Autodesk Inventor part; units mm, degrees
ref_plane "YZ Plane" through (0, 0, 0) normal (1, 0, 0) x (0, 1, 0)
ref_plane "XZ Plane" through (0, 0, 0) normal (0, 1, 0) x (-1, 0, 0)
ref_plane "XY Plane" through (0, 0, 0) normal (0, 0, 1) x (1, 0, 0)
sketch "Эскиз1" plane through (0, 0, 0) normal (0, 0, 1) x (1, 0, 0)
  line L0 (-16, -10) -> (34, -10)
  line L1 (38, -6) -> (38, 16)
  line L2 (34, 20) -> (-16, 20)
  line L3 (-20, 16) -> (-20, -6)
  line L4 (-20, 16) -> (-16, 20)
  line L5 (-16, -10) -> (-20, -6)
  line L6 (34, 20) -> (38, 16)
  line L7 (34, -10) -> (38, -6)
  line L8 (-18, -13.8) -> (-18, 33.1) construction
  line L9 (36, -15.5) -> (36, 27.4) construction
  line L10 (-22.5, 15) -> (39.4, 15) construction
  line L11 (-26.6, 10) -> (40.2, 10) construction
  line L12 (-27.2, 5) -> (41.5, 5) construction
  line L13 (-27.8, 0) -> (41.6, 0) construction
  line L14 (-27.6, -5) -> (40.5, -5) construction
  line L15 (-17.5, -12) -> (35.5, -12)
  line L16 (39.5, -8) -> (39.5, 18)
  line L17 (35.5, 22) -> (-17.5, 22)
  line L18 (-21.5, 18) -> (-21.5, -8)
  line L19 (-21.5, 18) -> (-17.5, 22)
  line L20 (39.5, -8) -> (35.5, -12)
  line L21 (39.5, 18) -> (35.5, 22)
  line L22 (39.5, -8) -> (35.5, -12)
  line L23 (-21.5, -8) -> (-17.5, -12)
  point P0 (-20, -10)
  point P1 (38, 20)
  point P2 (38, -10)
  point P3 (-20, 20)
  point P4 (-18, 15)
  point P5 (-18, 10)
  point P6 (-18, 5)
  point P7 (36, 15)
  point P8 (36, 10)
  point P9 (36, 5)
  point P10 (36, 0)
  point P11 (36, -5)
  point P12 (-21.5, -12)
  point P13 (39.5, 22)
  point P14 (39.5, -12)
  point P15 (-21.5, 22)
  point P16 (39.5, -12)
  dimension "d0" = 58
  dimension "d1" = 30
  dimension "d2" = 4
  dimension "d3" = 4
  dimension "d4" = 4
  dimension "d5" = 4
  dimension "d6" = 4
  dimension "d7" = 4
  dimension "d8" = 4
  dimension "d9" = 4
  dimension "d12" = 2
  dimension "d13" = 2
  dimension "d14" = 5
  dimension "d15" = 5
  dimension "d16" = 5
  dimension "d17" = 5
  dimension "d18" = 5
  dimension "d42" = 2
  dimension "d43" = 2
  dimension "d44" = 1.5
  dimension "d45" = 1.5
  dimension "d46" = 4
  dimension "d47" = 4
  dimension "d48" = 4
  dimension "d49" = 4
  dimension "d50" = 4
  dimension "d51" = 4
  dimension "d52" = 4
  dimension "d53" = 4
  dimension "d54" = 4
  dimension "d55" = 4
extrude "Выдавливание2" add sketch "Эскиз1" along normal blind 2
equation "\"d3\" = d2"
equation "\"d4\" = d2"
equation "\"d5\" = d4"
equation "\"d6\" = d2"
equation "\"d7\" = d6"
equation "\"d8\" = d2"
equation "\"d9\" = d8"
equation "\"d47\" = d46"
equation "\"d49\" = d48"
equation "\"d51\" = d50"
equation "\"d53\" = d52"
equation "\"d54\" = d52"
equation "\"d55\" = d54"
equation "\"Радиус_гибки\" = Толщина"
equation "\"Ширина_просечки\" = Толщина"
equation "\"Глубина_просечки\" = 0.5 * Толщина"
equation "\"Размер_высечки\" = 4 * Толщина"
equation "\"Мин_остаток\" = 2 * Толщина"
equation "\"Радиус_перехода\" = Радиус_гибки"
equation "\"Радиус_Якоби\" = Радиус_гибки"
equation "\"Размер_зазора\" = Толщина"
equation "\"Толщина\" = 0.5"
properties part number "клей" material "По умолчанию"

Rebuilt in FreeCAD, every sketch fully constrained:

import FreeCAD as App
import Part
import Sketcher

V = App.Vector


def add_polygon(sketch, points):
    """Adds a closed chain of lines whose ends are joined by coincident constraints."""
    first, n = sketch.GeometryCount, len(points)
    for a, b in zip(points, points[1:] + points[:1]):
        sketch.addGeometry(Part.LineSegment(App.Vector(*a, 0), App.Vector(*b, 0)), False)
    for i in range(n):
        sketch.addConstraint(Sketcher.Constraint("Coincident", first + i, 2, first + (i + 1) % n, 1))

doc = App.newDocument("Part")
body = doc.addObject("PartDesign::Body", "Body")

# Sketch on XY plane
sketch1 = body.newObject("Sketcher::SketchObject", "Sketch")
sketch1.AttachmentSupport = (doc.getObject("XY_Plane"), [""])
sketch1.MapMode = "FlatFace"
add_polygon(sketch1, [(-22, -8), (-18, -12), (36, -12), (40, -8), (40, 18), (36, 22), (-18, 22), (-22, 18)])  # lines 0-7
add_polygon(sketch1, [(34, -10), (-16, -10), (-20, -6), (-20, 16), (-16, 20), (34, 20), (38, 16), (38, -6)])  # lines 8-15
sketch1.addConstraint([
    Sketcher.Constraint("Horizontal", 1),
    Sketcher.Constraint("Vertical", 3),
    Sketcher.Constraint("Horizontal", 5),
    Sketcher.Constraint("Vertical", 7),
    Sketcher.Constraint("Horizontal", 8),
    Sketcher.Constraint("Vertical", 10),
    Sketcher.Constraint("Horizontal", 12),
    Sketcher.Constraint("Vertical", 14),
    Sketcher.Constraint("Perpendicular", 0, 2),
    Sketcher.Constraint("Perpendicular", 2, 4),
    Sketcher.Constraint("Perpendicular", 4, 6),
    Sketcher.Constraint("Perpendicular", 6, 9),
    Sketcher.Constraint("Perpendicular", 9, 11),
    Sketcher.Constraint("Perpendicular", 11, 13),
    Sketcher.Constraint("Perpendicular", 13, 15),
    Sketcher.Constraint("Horizontal", 3, 2, 6, 2),
    Sketcher.Constraint("Horizontal", 2, 2, 7, 2),
    Sketcher.Constraint("Horizontal", 10, 2, 13, 2),
    Sketcher.Constraint("Horizontal", 9, 2, 14, 2),
    Sketcher.Constraint("Vertical", 1, 2, 4, 2),
    Sketcher.Constraint("Vertical", 0, 2, 5, 2),
    Sketcher.Constraint("Vertical", 8, 2, 11, 2),
    Sketcher.Constraint("Equal", 6, 9),
    Sketcher.Constraint("DistanceX", 1, 2, 2, 2, 4.0),
    Sketcher.Constraint("DistanceY", 1, 2, 3, 2, 30.0),
    Sketcher.Constraint("DistanceY", 0, 2, 8, 2, 2.0),
    Sketcher.Constraint("DistanceY", 10, 2, 6, 2, 2.0),
    Sketcher.Constraint("DistanceX", 0, 2, 8, 2, 1.5),
    Sketcher.Constraint("DistanceX", 12, 2, 4, 2, 1.5),
    Sketcher.Constraint("DistanceX", 1, 1, 1, 2, 53.0),
    Sketcher.Constraint("DistanceY", 0, 2, -1, 1, 12.0),
    Sketcher.Constraint("DistanceX", 8, 2, -1, 1, 16.0),
])
pad1 = body.newObject("PartDesign::Pad", "Pad")
pad1.Profile = sketch1
pad1.Length = 2

doc.recompute()
